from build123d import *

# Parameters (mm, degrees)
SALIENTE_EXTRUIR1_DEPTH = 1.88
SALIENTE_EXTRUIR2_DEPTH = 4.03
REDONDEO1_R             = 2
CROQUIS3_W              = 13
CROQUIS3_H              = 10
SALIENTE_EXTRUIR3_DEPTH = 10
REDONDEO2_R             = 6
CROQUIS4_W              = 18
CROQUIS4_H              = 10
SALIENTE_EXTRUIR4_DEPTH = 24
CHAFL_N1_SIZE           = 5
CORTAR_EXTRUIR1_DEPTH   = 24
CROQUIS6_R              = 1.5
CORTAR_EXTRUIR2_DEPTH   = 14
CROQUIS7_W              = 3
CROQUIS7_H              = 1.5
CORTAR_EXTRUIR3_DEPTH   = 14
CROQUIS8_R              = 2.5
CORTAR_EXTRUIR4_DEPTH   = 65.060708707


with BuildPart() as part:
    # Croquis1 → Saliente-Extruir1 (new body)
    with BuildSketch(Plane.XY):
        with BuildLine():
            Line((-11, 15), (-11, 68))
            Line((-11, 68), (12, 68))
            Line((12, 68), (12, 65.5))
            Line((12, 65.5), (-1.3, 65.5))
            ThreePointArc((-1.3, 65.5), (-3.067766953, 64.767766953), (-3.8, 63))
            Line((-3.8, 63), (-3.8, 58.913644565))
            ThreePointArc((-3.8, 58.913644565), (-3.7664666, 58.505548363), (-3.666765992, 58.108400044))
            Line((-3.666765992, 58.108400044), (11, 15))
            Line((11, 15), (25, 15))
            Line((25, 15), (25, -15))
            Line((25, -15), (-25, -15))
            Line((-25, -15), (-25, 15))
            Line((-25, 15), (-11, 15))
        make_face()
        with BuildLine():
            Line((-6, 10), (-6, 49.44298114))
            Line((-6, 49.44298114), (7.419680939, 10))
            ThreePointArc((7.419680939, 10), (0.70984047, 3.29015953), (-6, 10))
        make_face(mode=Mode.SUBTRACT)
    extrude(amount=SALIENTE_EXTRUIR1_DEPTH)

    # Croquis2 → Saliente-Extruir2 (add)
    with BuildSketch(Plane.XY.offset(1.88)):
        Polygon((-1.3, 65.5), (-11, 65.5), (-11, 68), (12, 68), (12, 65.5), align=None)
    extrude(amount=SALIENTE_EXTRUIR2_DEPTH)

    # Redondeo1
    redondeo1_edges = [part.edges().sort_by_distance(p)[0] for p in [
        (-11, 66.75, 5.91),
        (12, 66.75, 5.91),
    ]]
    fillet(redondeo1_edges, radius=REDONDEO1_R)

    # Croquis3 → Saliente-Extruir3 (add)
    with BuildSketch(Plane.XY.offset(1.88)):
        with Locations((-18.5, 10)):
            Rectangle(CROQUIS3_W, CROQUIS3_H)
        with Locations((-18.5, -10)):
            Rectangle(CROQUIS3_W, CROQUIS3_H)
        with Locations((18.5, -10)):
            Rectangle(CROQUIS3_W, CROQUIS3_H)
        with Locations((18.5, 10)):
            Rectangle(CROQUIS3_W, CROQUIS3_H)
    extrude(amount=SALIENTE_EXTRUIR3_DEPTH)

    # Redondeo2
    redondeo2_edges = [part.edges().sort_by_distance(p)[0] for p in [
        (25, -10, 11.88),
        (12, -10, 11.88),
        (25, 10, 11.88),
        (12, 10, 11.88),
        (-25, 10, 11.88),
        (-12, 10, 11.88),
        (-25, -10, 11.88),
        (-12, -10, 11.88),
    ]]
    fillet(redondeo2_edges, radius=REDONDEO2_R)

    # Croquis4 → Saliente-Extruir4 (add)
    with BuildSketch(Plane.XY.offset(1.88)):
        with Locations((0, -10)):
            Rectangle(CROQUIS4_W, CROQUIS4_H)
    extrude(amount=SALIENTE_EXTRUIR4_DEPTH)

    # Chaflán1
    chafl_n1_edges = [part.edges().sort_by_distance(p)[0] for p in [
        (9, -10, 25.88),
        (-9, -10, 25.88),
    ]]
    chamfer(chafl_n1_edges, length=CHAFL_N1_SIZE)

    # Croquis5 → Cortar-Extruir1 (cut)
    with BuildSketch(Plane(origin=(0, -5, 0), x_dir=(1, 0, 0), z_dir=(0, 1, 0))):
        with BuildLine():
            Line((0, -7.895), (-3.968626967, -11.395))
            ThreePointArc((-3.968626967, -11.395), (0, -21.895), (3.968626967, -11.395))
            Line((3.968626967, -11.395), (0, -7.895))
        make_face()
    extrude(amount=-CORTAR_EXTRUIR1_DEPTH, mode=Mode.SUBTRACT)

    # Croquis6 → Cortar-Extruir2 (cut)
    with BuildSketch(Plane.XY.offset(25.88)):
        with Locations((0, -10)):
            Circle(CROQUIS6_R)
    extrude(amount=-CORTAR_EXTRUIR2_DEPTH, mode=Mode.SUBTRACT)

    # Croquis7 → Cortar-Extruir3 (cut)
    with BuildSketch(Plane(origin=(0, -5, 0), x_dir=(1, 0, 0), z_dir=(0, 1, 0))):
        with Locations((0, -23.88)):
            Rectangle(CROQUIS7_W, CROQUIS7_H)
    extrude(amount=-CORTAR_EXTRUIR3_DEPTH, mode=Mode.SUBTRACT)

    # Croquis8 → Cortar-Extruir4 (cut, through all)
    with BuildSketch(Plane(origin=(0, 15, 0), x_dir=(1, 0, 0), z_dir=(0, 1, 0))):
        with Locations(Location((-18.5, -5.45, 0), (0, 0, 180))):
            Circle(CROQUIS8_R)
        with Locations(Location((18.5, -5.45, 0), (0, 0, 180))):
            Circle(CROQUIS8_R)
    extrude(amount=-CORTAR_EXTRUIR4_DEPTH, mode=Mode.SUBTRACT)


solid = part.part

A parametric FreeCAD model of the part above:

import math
import FreeCAD as App
import Part
import Sketcher
from FreeCAD import Vector
Q = App.Units.Quantity


def edges_at(feature, points):
    """Names of the edges that pass closest to the given points."""
    edges = feature.Shape.Edges
    near = lambda p: min(range(len(edges)), key=lambda i: edges[i].distToShape(Part.Vertex(*p))[0])
    return sorted({f"Edge{near(p) + 1}" for p in points})

doc = App.newDocument("Part")
body = doc.addObject("PartDesign::Body", "Body")

sketch1 = doc.addObject("Sketcher::SketchObject", "Sketch")
body.addObject(sketch1)
sketch1.AttachmentSupport = (doc.XY_Plane, [""])
sketch1.MapMode = "FlatFace"
sketch1.addGeometry([
    Part.LineSegment(Vector(-11, 68, 0), Vector(-11, 15, 0)),
    Part.LineSegment(Vector(-11, 15, 0), Vector(-25, 15, 0)),
    Part.LineSegment(Vector(-25, 15, 0), Vector(-25, -15, 0)),
    Part.LineSegment(Vector(-25, -15, 0), Vector(25, -15, 0)),
    Part.LineSegment(Vector(25, -15, 0), Vector(25, 15, 0)),
    Part.LineSegment(Vector(25, 15, 0), Vector(11, 15, 0)),
    Part.LineSegment(Vector(11, 15, 0), Vector(-3.666766, 58.1084, 0)),
    Part.ArcOfCircle(Part.Circle(Vector(-1.3, 58.913645, 0), Vector(0, 0, 1), 2.5), math.radians(-180), math.radians(-161.210161)),
    Part.LineSegment(Vector(-3.8, 58.913645, 0), Vector(-3.8, 63, 0)),
    Part.ArcOfCircle(Part.Circle(Vector(-1.3, 63, 0), Vector(0, 0, 1), 2.5), math.radians(90), math.radians(180)),
    Part.LineSegment(Vector(-1.3, 65.5, 0), Vector(12, 65.5, 0)),
    Part.LineSegment(Vector(12, 65.5, 0), Vector(12, 68, 0)),
    Part.LineSegment(Vector(12, 68, 0), Vector(-11, 68, 0)),
    Part.LineSegment(Vector(-6, 10, 0), Vector(-6, 49.442981, 0)),
    Part.LineSegment(Vector(-6, 49.442981, 0), Vector(7.419681, 10, 0)),
    Part.ArcOfCircle(Part.Circle(Vector(0.70984, 10, 0), Vector(0, 0, 1), 6.70984), math.radians(180), math.radians(360)),
], False)
sketch1.addConstraint([
    Sketcher.Constraint("Coincident", 0, 2, 1, 1),
    Sketcher.Constraint("Coincident", 1, 2, 2, 1),
    Sketcher.Constraint("Coincident", 2, 2, 3, 1),
    Sketcher.Constraint("Coincident", 3, 2, 4, 1),
    Sketcher.Constraint("Coincident", 4, 2, 5, 1),
    Sketcher.Constraint("Coincident", 5, 2, 6, 1),
    Sketcher.Constraint("Tangent", 6, 2, 7, 2),
    Sketcher.Constraint("Tangent", 7, 1, 8, 1),
    Sketcher.Constraint("Tangent", 8, 2, 9, 2),
    Sketcher.Constraint("Tangent", 9, 1, 10, 1),
    Sketcher.Constraint("Coincident", 10, 2, 11, 1),
    Sketcher.Constraint("Coincident", 11, 2, 12, 1),
    Sketcher.Constraint("Coincident", 12, 2, 0, 1),
    Sketcher.Constraint("Coincident", 13, 2, 14, 1),
    Sketcher.Constraint("Coincident", 14, 2, 15, 2),
    Sketcher.Constraint("Tangent", 15, 1, 13, 1),
    Sketcher.Constraint("Vertical", 0),
    Sketcher.Constraint("Horizontal", 1),
    Sketcher.Constraint("Vertical", 2),
    Sketcher.Constraint("Horizontal", 3),
    Sketcher.Constraint("Vertical", 4),
    Sketcher.Constraint("Horizontal", 5),
    Sketcher.Constraint("Vertical", 8),
    Sketcher.Constraint("Horizontal", 10),
    Sketcher.Constraint("Vertical", 11),
    Sketcher.Constraint("Horizontal", 12),
    Sketcher.Constraint("Vertical", 13),
    Sketcher.Constraint("Equal", 7, 9),
    Sketcher.Constraint("Symmetric", 1, 2, 3, 2, -1, 1),
    Sketcher.Constraint("Symmetric", 0, 2, 5, 2, -2),
    Sketcher.Constraint("Parallel", 6, 14),
    Sketcher.Constraint("Horizontal", 15, 3, 14, 2),
    Sketcher.Constraint("Radius", 7, Q("2.5 mm")),
    Sketcher.Constraint("DistanceX", 1, 2, 1, 1, Q("14 mm")),
    Sketcher.Constraint("DistanceX", 3, 1, 3, 2, Q("50 mm")),
    Sketcher.Constraint("DistanceX", 12, 2, 12, 1, Q("23 mm")),
    Sketcher.Constraint("DistanceY", 0, 2, 0, 1, Q("53 mm")),
    Sketcher.Constraint("DistanceY", 2, 2, 2, 1, Q("30 mm")),
    Sketcher.Constraint("DistanceX", 10, 1, 10, 2, Q("13.3 mm")),
    Sketcher.Constraint("DistanceY", 11, 1, 11, 2, Q("2.5 mm")),
    Sketcher.Constraint("DistanceY", -1, 1, 15, 3, Q("10 mm")),
    Sketcher.Constraint("DistanceX", 13, 2, -1, 1, Q("6 mm")),
    Sketcher.Constraint("Radius", 15, Q("6.70984 mm")),
    Sketcher.Constraint("DistanceY", 13, 1, 13, 2, Q("39.442981 mm")),
])
pad1 = doc.addObject("PartDesign::Pad", "Pad")
body.addObject(pad1)
pad1.Profile = sketch1
pad1.Length = 1.88

sketch2 = doc.addObject("Sketcher::SketchObject", "Sketch001")
body.addObject(sketch2)
sketch2.AttachmentSupport = (doc.XY_Plane, [""])
sketch2.MapMode = "FlatFace"
sketch2.AttachmentOffset = App.Placement(Vector(0, 0, 1.88), App.Rotation())
sketch2.addGeometry([
    Part.LineSegment(Vector(-11, 65.5, 0), Vector(12, 65.5, 0)),
    Part.LineSegment(Vector(12, 65.5, 0), Vector(12, 68, 0)),
    Part.LineSegment(Vector(12, 68, 0), Vector(-11, 68, 0)),
    Part.LineSegment(Vector(-11, 68, 0), Vector(-11, 65.5, 0)),
], False)
sketch2.addConstraint([
    Sketcher.Constraint("Coincident", 0, 2, 1, 1),
    Sketcher.Constraint("Coincident", 1, 2, 2, 1),
    Sketcher.Constraint("Coincident", 2, 2, 3, 1),
    Sketcher.Constraint("Coincident", 3, 2, 0, 1),
    Sketcher.Constraint("Horizontal", 0),
    Sketcher.Constraint("Vertical", 1),
    Sketcher.Constraint("Horizontal", 2),
    Sketcher.Constraint("Vertical", 3),
    Sketcher.Constraint("DistanceX", 0, 1, 0, 2, Q("23 mm")),
    Sketcher.Constraint("DistanceY", 1, 1, 1, 2, Q("2.5 mm")),
    Sketcher.Constraint("DistanceX", -1, 1, 0, 2, Q("12 mm")),
    Sketcher.Constraint("DistanceY", -1, 1, 1, 2, Q("68 mm")),
])
pad2 = doc.addObject("PartDesign::Pad", "Pad001")
body.addObject(pad2)
pad2.Profile = sketch2
pad2.Length = 4.03
doc.recompute()

fillet = doc.addObject("PartDesign::Fillet", "Fillet")
body.addObject(fillet)
fillet.Base = (pad2, edges_at(pad2, [(-11, 66.75, 5.91), (12, 66.75, 5.91)]))
fillet.Radius = 2

sketch3 = doc.addObject("Sketcher::SketchObject", "Sketch002")
body.addObject(sketch3)
sketch3.AttachmentSupport = (doc.XY_Plane, [""])
sketch3.MapMode = "FlatFace"
sketch3.AttachmentOffset = App.Placement(Vector(0, 0, 1.88), App.Rotation())
sketch3.addGeometry([
    Part.LineSegment(Vector(-25, 15, 0), Vector(-25, 5, 0)),
    Part.LineSegment(Vector(-25, 5, 0), Vector(-12, 5, 0)),
    Part.LineSegment(Vector(-12, 5, 0), Vector(-12, 15, 0)),
    Part.LineSegment(Vector(-12, 15, 0), Vector(-25, 15, 0)),
    Part.LineSegment(Vector(-25, -5, 0), Vector(-25, -15, 0)),
    Part.LineSegment(Vector(-25, -15, 0), Vector(-12, -15, 0)),
    Part.LineSegment(Vector(-12, -15, 0), Vector(-12, -5, 0)),
    Part.LineSegment(Vector(-12, -5, 0), Vector(-25, -5, 0)),
    Part.LineSegment(Vector(12, -5, 0), Vector(12, -15, 0)),
    Part.LineSegment(Vector(12, -15, 0), Vector(25, -15, 0)),
    Part.LineSegment(Vector(25, -15, 0), Vector(25, -5, 0)),
    Part.LineSegment(Vector(25, -5, 0), Vector(12, -5, 0)),
    Part.LineSegment(Vector(12, 15, 0), Vector(12, 5, 0)),
    Part.LineSegment(Vector(12, 5, 0), Vector(25, 5, 0)),
    Part.LineSegment(Vector(25, 5, 0), Vector(25, 15, 0)),
    Part.LineSegment(Vector(25, 15, 0), Vector(12, 15, 0)),
], False)
sketch3.addConstraint([
    Sketcher.Constraint("Coincident", 0, 2, 1, 1),
    Sketcher.Constraint("Coincident", 1, 2, 2, 1),
    Sketcher.Constraint("Coincident", 2, 2, 3, 1),
    Sketcher.Constraint("Coincident", 3, 2, 0, 1),
    Sketcher.Constraint("Coincident", 4, 2, 5, 1),
    Sketcher.Constraint("Coincident", 5, 2, 6, 1),
    Sketcher.Constraint("Coincident", 6, 2, 7, 1),
    Sketcher.Constraint("Coincident", 7, 2, 4, 1),
    Sketcher.Constraint("Coincident", 8, 2, 9, 1),
    Sketcher.Constraint("Coincident", 9, 2, 10, 1),
    Sketcher.Constraint("Coincident", 10, 2, 11, 1),
    Sketcher.Constraint("Coincident", 11, 2, 8, 1),
    Sketcher.Constraint("Coincident", 12, 2, 13, 1),
    Sketcher.Constraint("Coincident", 13, 2, 14, 1),
    Sketcher.Constraint("Coincident", 14, 2, 15, 1),
    Sketcher.Constraint("Coincident", 15, 2, 12, 1),
    Sketcher.Constraint("Vertical", 0),
    Sketcher.Constraint("Horizontal", 1),
    Sketcher.Constraint("Vertical", 2),
    Sketcher.Constraint("Horizontal", 3),
    Sketcher.Constraint("Vertical", 4),
    Sketcher.Constraint("Horizontal", 5),
    Sketcher.Constraint("Vertical", 6),
    Sketcher.Constraint("Horizontal", 7),
    Sketcher.Constraint("Vertical", 8),
    Sketcher.Constraint("Horizontal", 9),
    Sketcher.Constraint("Vertical", 10),
    Sketcher.Constraint("Horizontal", 11),
    Sketcher.Constraint("Vertical", 12),
    Sketcher.Constraint("Horizontal", 13),
    Sketcher.Constraint("Vertical", 14),
    Sketcher.Constraint("Horizontal", 15),
    Sketcher.Constraint("Symmetric", 2, 2, 8, 2, -1, 1),
    Sketcher.Constraint("Symmetric", 0, 2, 10, 2, -1, 1),
    Sketcher.Constraint("Symmetric", 6, 2, 12, 2, -1, 1),
    Sketcher.Constraint("Symmetric", 4, 2, 14, 2, -1, 1),
    Sketcher.Constraint("Symmetric", 5, 2, 8, 2, -2),
    Sketcher.Constraint("Symmetric", 7, 2, 10, 2, -2),
    Sketcher.Constraint("DistanceX", 1, 1, 1, 2, Q("13 mm")),
    Sketcher.Constraint("DistanceY", 0, 2, 0, 1, Q("10 mm")),
    Sketcher.Constraint("DistanceX", 0, 2, -1, 1, Q("25 mm")),
    Sketcher.Constraint("DistanceY", -1, 1, 0, 2, Q("5 mm")),
])
pad3 = doc.addObject("PartDesign::Pad", "Pad002")
body.addObject(pad3)
pad3.Profile = sketch3
pad3.Length = 10
doc.recompute()

fillet2 = doc.addObject("PartDesign::Fillet", "Fillet001")
body.addObject(fillet2)
fillet2.Base = (pad3, edges_at(pad3, [
    (25, -10, 11.88),
    (12, -10, 11.88),
    (25, 10, 11.88),
    (12, 10, 11.88),
    (-25, 10, 11.88),
    (-12, 10, 11.88),
    (-25, -10, 11.88),
    (-12, -10, 11.88),
]))
fillet2.Radius = 6

sketch4 = doc.addObject("Sketcher::SketchObject", "Sketch003")
body.addObject(sketch4)
sketch4.AttachmentSupport = (doc.XY_Plane, [""])
sketch4.MapMode = "FlatFace"
sketch4.AttachmentOffset = App.Placement(Vector(0, 0, 1.88), App.Rotation())
sketch4.addGeometry([
    Part.LineSegment(Vector(-9, -5, 0), Vector(-9, -15, 0)),
    Part.LineSegment(Vector(-9, -15, 0), Vector(9, -15, 0)),
    Part.LineSegment(Vector(9, -15, 0), Vector(9, -5, 0)),
    Part.LineSegment(Vector(9, -5, 0), Vector(-9, -5, 0)),
], False)
sketch4.addConstraint([
    Sketcher.Constraint("Coincident", 0, 2, 1, 1),
    Sketcher.Constraint("Coincident", 1, 2, 2, 1),
    Sketcher.Constraint("Coincident", 2, 2, 3, 1),
    Sketcher.Constraint("Coincident", 3, 2, 0, 1),
    Sketcher.Constraint("Vertical", 0),
    Sketcher.Constraint("Horizontal", 1),
    Sketcher.Constraint("Vertical", 2),
    Sketcher.Constraint("Horizontal", 3),
    Sketcher.Constraint("DistanceX", 1, 1, 1, 2, Q("18 mm")),
    Sketcher.Constraint("DistanceY", 0, 2, 0, 1, Q("10 mm")),
    Sketcher.Constraint("DistanceX", 0, 2, -1, 1, Q("9 mm")),
    Sketcher.Constraint("DistanceY", 0, 2, -1, 1, Q("15 mm")),
])
pad4 = doc.addObject("PartDesign::Pad", "Pad003")
body.addObject(pad4)
pad4.Profile = sketch4
pad4.Length = 24
doc.recompute()

chamfer = doc.addObject("PartDesign::Chamfer", "Chamfer")
body.addObject(chamfer)
chamfer.Base = (pad4, edges_at(pad4, [(9, -10, 25.88), (-9, -10, 25.88)]))
chamfer.Size = 5

sketch5 = doc.addObject("Sketcher::SketchObject", "Sketch004")
body.addObject(sketch5)
sketch5.AttachmentSupport = (doc.XZ_Plane, [""])
sketch5.MapMode = "FlatFace"
sketch5.AttachmentOffset = App.Placement(Vector(0, 0, 5), App.Rotation())
sketch5.addGeometry([
    Part.LineSegment(Vector(0, 7.895, 0), Vector(-3.968627, 11.395, 0)),
    Part.ArcOfCircle(Part.Circle(Vector(0, 15.895, 0), Vector(0, 0, 1), 6), math.radians(-48.590378), math.radians(228.590378)),
    Part.LineSegment(Vector(3.968627, 11.395, 0), Vector(0, 7.895, 0)),
], False)
sketch5.addConstraint([
    Sketcher.Constraint("Tangent", 0, 2, 1, 2),
    Sketcher.Constraint("Tangent", 1, 1, 2, 1),
    Sketcher.Constraint("Coincident", 2, 2, 0, 1),
    Sketcher.Constraint("Symmetric", 0, 2, 1, 1, -2),
    Sketcher.Constraint("Radius", 1, Q("6 mm")),
    Sketcher.Constraint("DistanceY", 2, 2, 1, 3, Q("8 mm")),
    Sketcher.Constraint("DistanceY", -1, 1, 1, 3, Q("15.895 mm")),
])
pocket1 = doc.addObject("PartDesign::Pocket", "Pocket")
body.addObject(pocket1)
pocket1.Profile = sketch5
pocket1.Length = 24
pocket1.Reversed = True

sketch6 = doc.addObject("Sketcher::SketchObject", "Sketch005")
body.addObject(sketch6)
sketch6.AttachmentSupport = (doc.XY_Plane, [""])
sketch6.MapMode = "FlatFace"
sketch6.AttachmentOffset = App.Placement(Vector(0, 0, 25.88), App.Rotation())
sketch6.addGeometry(Part.Circle(Vector(0, -10, 0), Vector(0, 0, 1), 1.5), False)
sketch6.addConstraint([
    Sketcher.Constraint("PointOnObject", 0, 3, -2),
    Sketcher.Constraint("Diameter", 0, Q("3 mm")),
    Sketcher.Constraint("DistanceY", 0, 3, -1, 1, Q("10 mm")),
])
pocket2 = doc.addObject("PartDesign::Pocket", "Pocket001")
body.addObject(pocket2)
pocket2.Profile = sketch6
pocket2.Length = 14

sketch7 = doc.addObject("Sketcher::SketchObject", "Sketch006")
body.addObject(sketch7)
sketch7.AttachmentSupport = (doc.XZ_Plane, [""])
sketch7.MapMode = "FlatFace"
sketch7.AttachmentOffset = App.Placement(Vector(0, 0, 5), App.Rotation())
sketch7.addGeometry([
    Part.LineSegment(Vector(-1.5, 23.13, 0), Vector(-1.5, 24.63, 0)),
    Part.LineSegment(Vector(-1.5, 24.63, 0), Vector(1.5, 24.63, 0)),
    Part.LineSegment(Vector(1.5, 24.63, 0), Vector(1.5, 23.13, 0)),
    Part.LineSegment(Vector(1.5, 23.13, 0), Vector(-1.5, 23.13, 0)),
], False)
sketch7.addConstraint([
    Sketcher.Constraint("Coincident", 0, 2, 1, 1),
    Sketcher.Constraint("Coincident", 1, 2, 2, 1),
    Sketcher.Constraint("Coincident", 2, 2, 3, 1),
    Sketcher.Constraint("Coincident", 3, 2, 0, 1),
    Sketcher.Constraint("Vertical", 0),
    Sketcher.Constraint("Horizontal", 1),
    Sketcher.Constraint("Vertical", 2),
    Sketcher.Constraint("Horizontal", 3),
    Sketcher.Constraint("DistanceX", 1, 1, 1, 2, Q("3 mm")),
    Sketcher.Constraint("DistanceY", 0, 1, 0, 2, Q("1.5 mm")),
    Sketcher.Constraint("DistanceX", 0, 2, -1, 1, Q("1.5 mm")),
    Sketcher.Constraint("DistanceY", -1, 1, 0, 2, Q("24.63 mm")),
])
pocket3 = doc.addObject("PartDesign::Pocket", "Pocket002")
body.addObject(pocket3)
pocket3.Profile = sketch7
pocket3.Length = 14
pocket3.Reversed = True

sketch8 = doc.addObject("Sketcher::SketchObject", "Sketch007")
body.addObject(sketch8)
sketch8.AttachmentSupport = (doc.XZ_Plane, [""])
sketch8.MapMode = "FlatFace"
sketch8.AttachmentOffset = App.Placement(Vector(0, 0, -15), App.Rotation())
sketch8.addGeometry([
    Part.Circle(Vector(-18.5, 5.45, 0), Vector(0, 0, 1), 2.5),
    Part.Circle(Vector(18.5, 5.45, 0), Vector(0, 0, 1), 2.5),
], False)
sketch8.addConstraint([
    Sketcher.Constraint("Equal", 0, 1),
    Sketcher.Constraint("Symmetric", 0, 3, 1, 3, -2),
    Sketcher.Constraint("Diameter", 0, Q("5 mm")),
    Sketcher.Constraint("DistanceX", 0, 3, 1, 3, Q("37 mm")),
    Sketcher.Constraint("DistanceY", -1, 1, 0, 3, Q("5.45 mm")),
])
pocket4 = doc.addObject("PartDesign::Pocket", "Pocket003")
body.addObject(pocket4)
pocket4.Profile = sketch8
pocket4.Type = "ThroughAll"
pocket4.Reversed = True

doc.recompute()
